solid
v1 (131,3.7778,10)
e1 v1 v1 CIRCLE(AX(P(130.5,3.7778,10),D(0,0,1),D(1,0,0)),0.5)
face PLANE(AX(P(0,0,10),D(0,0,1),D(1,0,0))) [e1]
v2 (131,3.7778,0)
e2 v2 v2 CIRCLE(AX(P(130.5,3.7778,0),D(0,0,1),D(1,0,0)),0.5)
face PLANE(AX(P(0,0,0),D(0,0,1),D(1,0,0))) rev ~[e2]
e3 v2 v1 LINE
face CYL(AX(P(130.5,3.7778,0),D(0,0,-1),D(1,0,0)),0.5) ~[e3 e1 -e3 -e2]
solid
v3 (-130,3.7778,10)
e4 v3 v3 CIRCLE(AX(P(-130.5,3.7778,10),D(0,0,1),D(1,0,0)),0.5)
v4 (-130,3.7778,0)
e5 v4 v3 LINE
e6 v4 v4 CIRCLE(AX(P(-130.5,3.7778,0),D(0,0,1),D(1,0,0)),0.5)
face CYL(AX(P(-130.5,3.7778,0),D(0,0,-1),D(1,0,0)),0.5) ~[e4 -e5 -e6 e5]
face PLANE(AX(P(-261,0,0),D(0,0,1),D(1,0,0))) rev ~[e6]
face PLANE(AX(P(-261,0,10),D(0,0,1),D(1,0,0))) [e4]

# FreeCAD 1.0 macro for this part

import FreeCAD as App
import Part
import Sketcher
from FreeCAD import Vector
Q = App.Units.Quantity

doc = App.newDocument("Part")
body = doc.addObject("PartDesign::Body", "Body")
body.AllowCompound = True

sketch1 = body.newObject("Sketcher::SketchObject", "Sketch")
sketch1.AttachmentSupport = (doc.getObject("XY_Plane"), [""])
sketch1.MapMode = "FlatFace"
sketch1.addGeometry(Part.Circle(Vector(130.5, 3.8, 0), Vector(0, 0, 1), 0.5), False)
sketch1.addConstraint([
    Sketcher.Constraint("Diameter", 0, Q("1 mm")),
    Sketcher.Constraint("DistanceX", -1, 1, 0, 3, Q("130.5 mm")),
    Sketcher.Constraint("DistanceY", -1, 1, 0, 3, Q("3.7778 mm")),
])
pad1 = body.newObject("PartDesign::Pad", "Pad")
pad1.Profile = sketch1
pad1.Length = 10
doc.recompute()

linearpattern = body.newObject("PartDesign::LinearPattern", "LinearPattern")
linearpattern.Originals = [pad1]
linearpattern.Direction = (doc.getObject("X_Axis"), [""])
linearpattern.Mode = "offset"
linearpattern.Offset = 261
linearpattern.Occurrences = 2
linearpattern.Reversed = True
body.Tip = linearpattern

doc.recompute()
